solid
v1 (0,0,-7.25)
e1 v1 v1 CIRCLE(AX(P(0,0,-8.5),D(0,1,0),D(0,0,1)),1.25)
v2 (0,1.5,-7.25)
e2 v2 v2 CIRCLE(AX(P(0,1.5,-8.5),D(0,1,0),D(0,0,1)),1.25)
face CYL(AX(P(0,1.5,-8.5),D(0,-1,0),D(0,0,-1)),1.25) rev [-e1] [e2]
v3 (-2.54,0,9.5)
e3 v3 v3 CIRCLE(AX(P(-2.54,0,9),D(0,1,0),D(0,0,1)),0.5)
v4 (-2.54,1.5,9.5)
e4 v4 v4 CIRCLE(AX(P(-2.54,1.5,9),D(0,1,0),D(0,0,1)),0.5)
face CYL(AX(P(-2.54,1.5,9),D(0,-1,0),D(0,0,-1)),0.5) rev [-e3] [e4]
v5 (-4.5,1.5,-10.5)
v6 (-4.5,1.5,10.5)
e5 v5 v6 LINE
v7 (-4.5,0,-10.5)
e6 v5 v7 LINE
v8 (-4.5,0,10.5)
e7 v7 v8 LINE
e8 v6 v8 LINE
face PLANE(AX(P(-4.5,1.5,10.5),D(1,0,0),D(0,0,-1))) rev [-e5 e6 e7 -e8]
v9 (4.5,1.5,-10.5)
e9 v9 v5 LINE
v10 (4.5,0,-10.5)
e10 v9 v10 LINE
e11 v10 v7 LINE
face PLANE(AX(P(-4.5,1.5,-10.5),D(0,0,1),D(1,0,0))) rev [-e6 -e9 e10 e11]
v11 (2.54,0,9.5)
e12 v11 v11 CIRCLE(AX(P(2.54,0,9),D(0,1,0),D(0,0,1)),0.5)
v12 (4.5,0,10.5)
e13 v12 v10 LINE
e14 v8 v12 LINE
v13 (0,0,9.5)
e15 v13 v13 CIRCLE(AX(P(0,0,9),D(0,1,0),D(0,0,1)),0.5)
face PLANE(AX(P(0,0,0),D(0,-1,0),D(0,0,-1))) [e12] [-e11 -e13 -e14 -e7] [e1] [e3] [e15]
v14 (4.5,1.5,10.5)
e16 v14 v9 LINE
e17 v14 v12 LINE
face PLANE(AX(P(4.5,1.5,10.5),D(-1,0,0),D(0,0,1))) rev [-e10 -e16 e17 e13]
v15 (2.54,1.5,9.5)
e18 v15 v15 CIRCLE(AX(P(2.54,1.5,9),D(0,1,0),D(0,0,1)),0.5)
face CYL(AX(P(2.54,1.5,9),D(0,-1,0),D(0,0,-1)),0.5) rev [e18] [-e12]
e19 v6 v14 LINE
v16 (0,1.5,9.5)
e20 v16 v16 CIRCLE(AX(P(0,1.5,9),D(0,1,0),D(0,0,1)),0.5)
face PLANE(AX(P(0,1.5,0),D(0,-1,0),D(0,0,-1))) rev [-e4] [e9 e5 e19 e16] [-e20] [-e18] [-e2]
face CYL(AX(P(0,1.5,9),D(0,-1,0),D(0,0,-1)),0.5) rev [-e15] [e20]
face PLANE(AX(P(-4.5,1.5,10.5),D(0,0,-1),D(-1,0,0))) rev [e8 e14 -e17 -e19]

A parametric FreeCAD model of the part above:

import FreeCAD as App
import Part
import Sketcher
from FreeCAD import Vector
Q = App.Units.Quantity


def add_polygon(sketch, points):
    """Adds a closed chain of lines whose ends are joined by coincident constraints."""
    first, n = sketch.GeometryCount, len(points)
    for a, b in zip(points, points[1:] + points[:1]):
        sketch.addGeometry(Part.LineSegment(App.Vector(*a, 0), App.Vector(*b, 0)), False)
    for i in range(n):
        sketch.addConstraint(Sketcher.Constraint("Coincident", first + i, 2, first + (i + 1) % n, 1))

doc = App.newDocument("Part")
params = doc.addObject("Spreadsheet::Sheet", "Params")
for row, (alias, value) in enumerate([
    ("sketch1_diameter", "1 mm"),
    ("sketch1_diameter2", "2.5 mm"),
    ("sketch1_width", "9 mm"),
    ("sketch1_height", "21 mm"),
    ("pad1_length", "1.5 mm"),
], start=1):
    params.set(f"A{row}", alias)
    params.set(f"B{row}", "=" + value)
    params.setAlias(f"B{row}", alias)

body = doc.addObject("PartDesign::Body", "Body")

# Sketch on XZ plane
sketch1 = body.newObject("Sketcher::SketchObject", "Sketch")
sketch1.AttachmentSupport = (doc.getObject("XZ_Plane"), [""])
sketch1.MapMode = "FlatFace"
add_polygon(sketch1, [(-4.5, -10.5), (-4.5, 10.5), (4.5, 10.5), (4.5, -10.5)])  # lines 0-3
sketch1.addGeometry(Part.Circle(Vector(-2.5, 9, 0), Vector(0, 0, 1), 0.5), False)  # 4
sketch1.addGeometry(Part.Circle(Vector(0, 9, 0), Vector(0, 0, 1), 0.5), False)  # 5
sketch1.addGeometry(Part.Circle(Vector(2.5, 9, 0), Vector(0, 0, 1), 0.5), False)  # 6
sketch1.addGeometry(Part.Circle(Vector(0, -8.5, 0), Vector(0, 0, 1), 1.2), False)  # 7
sketch1.addConstraint(Sketcher.Constraint("Vertical", 0))
sketch1.addConstraint(Sketcher.Constraint("Horizontal", 1))
sketch1.addConstraint(Sketcher.Constraint("Vertical", 2))
sketch1.addConstraint(Sketcher.Constraint("Horizontal", 3))
sketch1.addConstraint(Sketcher.Constraint("Equal", 4, 5))
sketch1.addConstraint(Sketcher.Constraint("Equal", 5, 6))
sketch1.addConstraint(Sketcher.Constraint("Symmetric", 0, 2, 2, 2, -1, 1))
sketch1.addConstraint(Sketcher.Constraint("Symmetric", 4, 3, 6, 3, -2))
sketch1.addConstraint(Sketcher.Constraint("PointOnObject", 5, 3, -2))
sketch1.addConstraint(Sketcher.Constraint("PointOnObject", 7, 3, -2))
sketch1.addConstraint(Sketcher.Constraint("Horizontal", 4, 3, 5, 3))
sketch1.addConstraint(Sketcher.Constraint("Diameter", 4, Q("1 mm")))
sketch1.addConstraint(Sketcher.Constraint("Diameter", 7, Q("2.5 mm")))
sketch1.addConstraint(Sketcher.Constraint("DistanceX", 1, 1, 1, 2, Q("9 mm")))
sketch1.addConstraint(Sketcher.Constraint("DistanceY", 0, 1, 0, 2, Q("21 mm")))
sketch1.addConstraint(Sketcher.Constraint("DistanceY", -1, 1, 4, 3, Q("9 mm")))
sketch1.addConstraint(Sketcher.Constraint("DistanceY", 7, 3, 0, 2, Q("19 mm")))
sketch1.addConstraint(Sketcher.Constraint("DistanceX", 4, 3, -1, 1, Q("2.54 mm")))
sketch1.setExpression("Constraints[15]", "Params.sketch1_diameter")
sketch1.setExpression("Constraints[16]", "Params.sketch1_diameter2")
sketch1.setExpression("Constraints[17]", "Params.sketch1_width")
sketch1.setExpression("Constraints[18]", "Params.sketch1_height")
pad1 = body.newObject("PartDesign::Pad", "Pad")
pad1.Profile = sketch1
pad1.setExpression("Length", "Params.pad1_length")
pad1.Reversed = True

doc.recompute()
